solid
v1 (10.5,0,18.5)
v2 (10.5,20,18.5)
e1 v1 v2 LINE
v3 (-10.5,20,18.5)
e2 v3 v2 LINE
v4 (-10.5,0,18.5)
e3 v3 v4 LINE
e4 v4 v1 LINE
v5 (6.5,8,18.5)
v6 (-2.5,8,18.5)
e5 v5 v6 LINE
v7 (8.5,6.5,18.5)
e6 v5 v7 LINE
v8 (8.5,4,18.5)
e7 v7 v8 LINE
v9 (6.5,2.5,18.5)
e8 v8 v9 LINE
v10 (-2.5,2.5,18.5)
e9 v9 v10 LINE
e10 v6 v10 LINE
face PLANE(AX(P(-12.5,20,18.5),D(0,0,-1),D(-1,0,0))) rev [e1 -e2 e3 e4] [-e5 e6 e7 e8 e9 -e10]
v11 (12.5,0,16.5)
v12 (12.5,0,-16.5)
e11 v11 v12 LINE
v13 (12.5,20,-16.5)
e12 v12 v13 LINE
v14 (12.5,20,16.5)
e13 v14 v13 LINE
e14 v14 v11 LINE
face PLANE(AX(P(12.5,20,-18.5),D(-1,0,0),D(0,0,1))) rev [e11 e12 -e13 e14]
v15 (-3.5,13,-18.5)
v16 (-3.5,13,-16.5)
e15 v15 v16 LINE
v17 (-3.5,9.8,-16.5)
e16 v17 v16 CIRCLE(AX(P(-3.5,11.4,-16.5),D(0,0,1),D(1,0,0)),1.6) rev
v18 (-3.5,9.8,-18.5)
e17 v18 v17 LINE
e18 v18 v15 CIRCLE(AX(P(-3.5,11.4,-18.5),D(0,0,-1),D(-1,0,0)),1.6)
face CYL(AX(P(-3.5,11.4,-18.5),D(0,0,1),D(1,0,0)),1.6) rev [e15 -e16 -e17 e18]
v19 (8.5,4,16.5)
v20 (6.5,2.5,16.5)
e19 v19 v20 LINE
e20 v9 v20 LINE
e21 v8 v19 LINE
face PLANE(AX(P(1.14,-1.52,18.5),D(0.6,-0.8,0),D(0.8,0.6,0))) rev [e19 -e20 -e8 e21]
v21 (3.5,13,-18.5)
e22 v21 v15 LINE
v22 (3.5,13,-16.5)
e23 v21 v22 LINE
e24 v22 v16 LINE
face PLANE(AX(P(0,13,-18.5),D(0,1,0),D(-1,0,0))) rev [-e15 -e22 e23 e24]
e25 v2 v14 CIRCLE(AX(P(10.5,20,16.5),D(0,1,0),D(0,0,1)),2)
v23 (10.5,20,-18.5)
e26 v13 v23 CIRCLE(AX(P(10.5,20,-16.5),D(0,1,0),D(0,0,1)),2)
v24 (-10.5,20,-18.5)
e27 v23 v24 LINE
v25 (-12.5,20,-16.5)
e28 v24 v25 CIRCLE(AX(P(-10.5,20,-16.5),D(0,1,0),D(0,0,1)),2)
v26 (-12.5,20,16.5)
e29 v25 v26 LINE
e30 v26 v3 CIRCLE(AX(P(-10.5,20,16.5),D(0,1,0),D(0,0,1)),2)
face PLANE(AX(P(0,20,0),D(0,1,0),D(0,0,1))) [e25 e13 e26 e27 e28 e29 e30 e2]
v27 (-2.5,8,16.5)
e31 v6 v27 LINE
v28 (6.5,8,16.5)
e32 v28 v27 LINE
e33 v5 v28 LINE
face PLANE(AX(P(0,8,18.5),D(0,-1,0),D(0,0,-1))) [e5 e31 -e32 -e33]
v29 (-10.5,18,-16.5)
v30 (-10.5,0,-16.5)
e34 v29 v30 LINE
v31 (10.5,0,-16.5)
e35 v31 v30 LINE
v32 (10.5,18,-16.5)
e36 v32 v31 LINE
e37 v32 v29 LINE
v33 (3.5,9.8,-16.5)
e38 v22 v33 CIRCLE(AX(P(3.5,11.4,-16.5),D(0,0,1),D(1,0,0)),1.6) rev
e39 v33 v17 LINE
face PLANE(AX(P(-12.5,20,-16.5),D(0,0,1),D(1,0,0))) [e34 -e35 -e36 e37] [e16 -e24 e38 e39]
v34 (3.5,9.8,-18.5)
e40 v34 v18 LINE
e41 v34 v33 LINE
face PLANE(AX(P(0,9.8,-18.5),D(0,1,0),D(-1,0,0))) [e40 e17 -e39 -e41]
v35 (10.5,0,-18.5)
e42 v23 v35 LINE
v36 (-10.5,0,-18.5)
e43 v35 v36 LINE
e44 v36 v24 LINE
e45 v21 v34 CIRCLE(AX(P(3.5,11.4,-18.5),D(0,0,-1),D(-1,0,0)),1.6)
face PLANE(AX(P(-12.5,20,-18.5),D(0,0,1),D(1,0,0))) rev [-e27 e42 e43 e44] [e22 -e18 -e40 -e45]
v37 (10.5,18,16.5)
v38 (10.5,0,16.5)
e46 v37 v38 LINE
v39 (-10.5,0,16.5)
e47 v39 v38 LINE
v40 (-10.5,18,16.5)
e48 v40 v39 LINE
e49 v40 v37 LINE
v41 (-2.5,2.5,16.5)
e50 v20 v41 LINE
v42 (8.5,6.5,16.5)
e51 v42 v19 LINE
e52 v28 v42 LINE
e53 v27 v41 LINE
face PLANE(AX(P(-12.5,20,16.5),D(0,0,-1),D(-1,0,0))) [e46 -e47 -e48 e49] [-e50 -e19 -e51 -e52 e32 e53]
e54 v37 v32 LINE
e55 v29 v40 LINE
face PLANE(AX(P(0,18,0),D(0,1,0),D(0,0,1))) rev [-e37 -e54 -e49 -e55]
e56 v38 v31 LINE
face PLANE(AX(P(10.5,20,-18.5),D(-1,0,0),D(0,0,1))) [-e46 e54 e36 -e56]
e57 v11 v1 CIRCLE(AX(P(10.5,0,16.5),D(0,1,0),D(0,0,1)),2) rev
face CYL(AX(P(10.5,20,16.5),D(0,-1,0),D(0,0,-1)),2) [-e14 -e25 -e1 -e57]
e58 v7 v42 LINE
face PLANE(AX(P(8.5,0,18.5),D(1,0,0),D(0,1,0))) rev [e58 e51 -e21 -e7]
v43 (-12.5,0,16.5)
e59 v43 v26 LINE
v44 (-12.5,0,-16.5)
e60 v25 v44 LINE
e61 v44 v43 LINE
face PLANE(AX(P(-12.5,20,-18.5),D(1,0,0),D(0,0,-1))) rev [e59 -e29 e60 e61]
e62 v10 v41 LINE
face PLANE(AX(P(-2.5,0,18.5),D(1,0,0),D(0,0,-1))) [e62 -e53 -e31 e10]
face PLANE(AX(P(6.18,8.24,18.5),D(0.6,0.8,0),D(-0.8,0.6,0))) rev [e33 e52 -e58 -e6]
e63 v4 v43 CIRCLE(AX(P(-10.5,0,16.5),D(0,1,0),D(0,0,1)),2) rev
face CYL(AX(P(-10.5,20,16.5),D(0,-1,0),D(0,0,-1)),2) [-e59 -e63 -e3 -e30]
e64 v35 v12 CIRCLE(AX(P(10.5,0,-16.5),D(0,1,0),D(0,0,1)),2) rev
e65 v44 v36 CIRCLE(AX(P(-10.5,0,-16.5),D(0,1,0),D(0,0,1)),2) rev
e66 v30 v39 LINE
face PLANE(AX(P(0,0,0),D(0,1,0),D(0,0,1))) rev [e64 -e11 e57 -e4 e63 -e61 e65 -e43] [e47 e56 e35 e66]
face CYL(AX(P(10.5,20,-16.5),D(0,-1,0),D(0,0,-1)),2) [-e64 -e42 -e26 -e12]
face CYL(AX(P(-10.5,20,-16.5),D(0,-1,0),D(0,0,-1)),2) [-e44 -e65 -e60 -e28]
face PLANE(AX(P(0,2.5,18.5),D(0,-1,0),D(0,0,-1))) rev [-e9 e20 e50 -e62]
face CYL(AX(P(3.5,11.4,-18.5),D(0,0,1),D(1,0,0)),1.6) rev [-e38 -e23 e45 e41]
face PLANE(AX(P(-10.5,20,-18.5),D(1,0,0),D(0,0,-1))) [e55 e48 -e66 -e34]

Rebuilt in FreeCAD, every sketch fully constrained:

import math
import FreeCAD as App
import Part
import Sketcher

V = App.Vector
Q = App.Units.Quantity


def edges_at(feature, points):
    """Names of the edges that pass closest to the given points."""
    edges = feature.Shape.Edges
    near = lambda p: min(range(len(edges)), key=lambda i: edges[i].distToShape(Part.Vertex(*p))[0])
    return sorted({f"Edge{near(p) + 1}" for p in points})


def faces_at(feature, points):
    """Names of the faces that lie closest to the given points."""
    faces = feature.Shape.Faces
    near = lambda p: min(range(len(faces)), key=lambda i: faces[i].distToShape(Part.Vertex(*p))[0])
    return sorted({f"Face{near(p) + 1}" for p in points})


def add_polygon(sketch, points):
    """Adds a closed chain of lines whose ends are joined by coincident constraints."""
    first, n = sketch.GeometryCount, len(points)
    for a, b in zip(points, points[1:] + points[:1]):
        sketch.addGeometry(Part.LineSegment(App.Vector(*a, 0), App.Vector(*b, 0)), False)
    for i in range(n):
        sketch.addConstraint(Sketcher.Constraint("Coincident", first + i, 2, first + (i + 1) % n, 1))

doc = App.newDocument("Part")
body = doc.addObject("PartDesign::Body", "Body")

# Sketch on XZ plane
sketch1 = body.newObject("Sketcher::SketchObject", "Sketch")
sketch1.AttachmentSupport = (doc.getObject("XZ_Plane"), [""])
sketch1.MapMode = "FlatFace"
add_polygon(sketch1, [(-12, -18), (-12, 18), (12, 18), (12, -18)])  # lines 0-3
sketch1.addConstraint([
    Sketcher.Constraint("Vertical", 0),
    Sketcher.Constraint("Horizontal", 1),
    Sketcher.Constraint("Vertical", 2),
    Sketcher.Constraint("Horizontal", 3),
    Sketcher.Constraint("Symmetric", 0, 2, 2, 2, -1, 1),
    Sketcher.Constraint("DistanceX", 1, 1, 1, 2, Q("25 mm")),
    Sketcher.Constraint("DistanceY", 0, 1, 0, 2, Q("37 mm")),
])
pad1 = body.newObject("PartDesign::Pad", "Pad")
pad1.Profile = sketch1
pad1.Length = 20
pad1.Reversed = True
doc.recompute()

thickness = body.newObject("PartDesign::Thickness", "Thickness")
thickness.Base = (pad1, faces_at(pad1, [(0, 0, 0)]))
thickness.Value = 2
thickness.Reversed = True
thickness.Join = "Intersection"
doc.recompute()

fillet = body.newObject("PartDesign::Fillet", "Fillet")
fillet.Base = (thickness, edges_at(thickness, [
    (12.5, 10, 18.5),
    (-12.5, 10, 18.5),
    (-12.5, 10, -18.5),
    (12.5, 10, -18.5),
]))
fillet.Radius = 2

# Sketch on XY plane
sketch2 = body.newObject("Sketcher::SketchObject", "Sketch001")
sketch2.AttachmentSupport = (doc.getObject("XY_Plane"), [""])
sketch2.MapMode = "FlatFace"
sketch2.AttachmentOffset = App.Placement(V(0, 0, 16.5), App.Rotation())
add_polygon(sketch2, [(-2.5, 8), (6.5, 8), (8.5, 6.5), (8.5, 4), (6.5, 2.5), (-2.5, 2.5)])  # lines 0-5
sketch2.addConstraint([
    Sketcher.Constraint("Horizontal", 0),
    Sketcher.Constraint("Vertical", 2),
    Sketcher.Constraint("Horizontal", 4),
    Sketcher.Constraint("Vertical", 5),
    Sketcher.Constraint("Vertical", 0, 2, 3, 2),
    Sketcher.Constraint("Equal", 1, 3),
    Sketcher.Constraint("DistanceX", 0, 1, 0, 2, Q("9 mm")),
    Sketcher.Constraint("DistanceY", 2, 2, 2, 1, Q("2.5 mm")),
    Sketcher.Constraint("DistanceY", 5, 1, 5, 2, Q("5.5 mm")),
    Sketcher.Constraint("DistanceY", -1, 1, 0, 2, Q("8 mm")),
    Sketcher.Constraint("DistanceX", 0, 2, 1, 2, Q("2 mm")),
    Sketcher.Constraint("DistanceX", -1, 1, 0, 2, Q("6.5 mm")),
])
pocket1 = body.newObject("PartDesign::Pocket", "Pocket")
pocket1.Profile = sketch2
pocket1.Type = "ThroughAll"
pocket1.Reversed = True

# Sketch on XY plane
sketch3 = body.newObject("Sketcher::SketchObject", "Sketch002")
sketch3.AttachmentSupport = (doc.getObject("XY_Plane"), [""])
sketch3.MapMode = "FlatFace"
sketch3.AttachmentOffset = App.Placement(V(0, 0, 16.5), App.Rotation())
sketch3.addGeometry([
    Part.LineSegment(V(3.5, 9.8, 0), V(-3.5, 9.8, 0)),
    Part.ArcOfCircle(Part.Circle(V(-3.5, 11.4, 0), V(0, 0, 1), 1.6), math.radians(90), math.radians(270)),
    Part.LineSegment(V(-3.5, 13, 0), V(3.5, 13, 0)),
    Part.ArcOfCircle(Part.Circle(V(3.5, 11.4, 0), V(0, 0, 1), 1.6), math.radians(-90), math.radians(90)),
], False)
sketch3.addConstraint([
    Sketcher.Constraint("Tangent", 0, 2, 1, 2),
    Sketcher.Constraint("Tangent", 1, 1, 2, 1),
    Sketcher.Constraint("Tangent", 2, 2, 3, 2),
    Sketcher.Constraint("Tangent", 3, 1, 0, 1),
    Sketcher.Constraint("Horizontal", 0),
    Sketcher.Constraint("Horizontal", 2),
    Sketcher.Constraint("Radius", 1, Q("1.6 mm")),
    Sketcher.Constraint("DistanceX", 0, 2, 0, 1, Q("7 mm")),
    Sketcher.Constraint("DistanceY", -1, 1, 1, 1, Q("13 mm")),
    Sketcher.Constraint("DistanceX", 1, 3, -1, 1, Q("3.5 mm")),
])
pocket2 = body.newObject("PartDesign::Pocket", "Pocket001")
pocket2.Profile = sketch3
pocket2.Type = "ThroughAll"

doc.recompute()
